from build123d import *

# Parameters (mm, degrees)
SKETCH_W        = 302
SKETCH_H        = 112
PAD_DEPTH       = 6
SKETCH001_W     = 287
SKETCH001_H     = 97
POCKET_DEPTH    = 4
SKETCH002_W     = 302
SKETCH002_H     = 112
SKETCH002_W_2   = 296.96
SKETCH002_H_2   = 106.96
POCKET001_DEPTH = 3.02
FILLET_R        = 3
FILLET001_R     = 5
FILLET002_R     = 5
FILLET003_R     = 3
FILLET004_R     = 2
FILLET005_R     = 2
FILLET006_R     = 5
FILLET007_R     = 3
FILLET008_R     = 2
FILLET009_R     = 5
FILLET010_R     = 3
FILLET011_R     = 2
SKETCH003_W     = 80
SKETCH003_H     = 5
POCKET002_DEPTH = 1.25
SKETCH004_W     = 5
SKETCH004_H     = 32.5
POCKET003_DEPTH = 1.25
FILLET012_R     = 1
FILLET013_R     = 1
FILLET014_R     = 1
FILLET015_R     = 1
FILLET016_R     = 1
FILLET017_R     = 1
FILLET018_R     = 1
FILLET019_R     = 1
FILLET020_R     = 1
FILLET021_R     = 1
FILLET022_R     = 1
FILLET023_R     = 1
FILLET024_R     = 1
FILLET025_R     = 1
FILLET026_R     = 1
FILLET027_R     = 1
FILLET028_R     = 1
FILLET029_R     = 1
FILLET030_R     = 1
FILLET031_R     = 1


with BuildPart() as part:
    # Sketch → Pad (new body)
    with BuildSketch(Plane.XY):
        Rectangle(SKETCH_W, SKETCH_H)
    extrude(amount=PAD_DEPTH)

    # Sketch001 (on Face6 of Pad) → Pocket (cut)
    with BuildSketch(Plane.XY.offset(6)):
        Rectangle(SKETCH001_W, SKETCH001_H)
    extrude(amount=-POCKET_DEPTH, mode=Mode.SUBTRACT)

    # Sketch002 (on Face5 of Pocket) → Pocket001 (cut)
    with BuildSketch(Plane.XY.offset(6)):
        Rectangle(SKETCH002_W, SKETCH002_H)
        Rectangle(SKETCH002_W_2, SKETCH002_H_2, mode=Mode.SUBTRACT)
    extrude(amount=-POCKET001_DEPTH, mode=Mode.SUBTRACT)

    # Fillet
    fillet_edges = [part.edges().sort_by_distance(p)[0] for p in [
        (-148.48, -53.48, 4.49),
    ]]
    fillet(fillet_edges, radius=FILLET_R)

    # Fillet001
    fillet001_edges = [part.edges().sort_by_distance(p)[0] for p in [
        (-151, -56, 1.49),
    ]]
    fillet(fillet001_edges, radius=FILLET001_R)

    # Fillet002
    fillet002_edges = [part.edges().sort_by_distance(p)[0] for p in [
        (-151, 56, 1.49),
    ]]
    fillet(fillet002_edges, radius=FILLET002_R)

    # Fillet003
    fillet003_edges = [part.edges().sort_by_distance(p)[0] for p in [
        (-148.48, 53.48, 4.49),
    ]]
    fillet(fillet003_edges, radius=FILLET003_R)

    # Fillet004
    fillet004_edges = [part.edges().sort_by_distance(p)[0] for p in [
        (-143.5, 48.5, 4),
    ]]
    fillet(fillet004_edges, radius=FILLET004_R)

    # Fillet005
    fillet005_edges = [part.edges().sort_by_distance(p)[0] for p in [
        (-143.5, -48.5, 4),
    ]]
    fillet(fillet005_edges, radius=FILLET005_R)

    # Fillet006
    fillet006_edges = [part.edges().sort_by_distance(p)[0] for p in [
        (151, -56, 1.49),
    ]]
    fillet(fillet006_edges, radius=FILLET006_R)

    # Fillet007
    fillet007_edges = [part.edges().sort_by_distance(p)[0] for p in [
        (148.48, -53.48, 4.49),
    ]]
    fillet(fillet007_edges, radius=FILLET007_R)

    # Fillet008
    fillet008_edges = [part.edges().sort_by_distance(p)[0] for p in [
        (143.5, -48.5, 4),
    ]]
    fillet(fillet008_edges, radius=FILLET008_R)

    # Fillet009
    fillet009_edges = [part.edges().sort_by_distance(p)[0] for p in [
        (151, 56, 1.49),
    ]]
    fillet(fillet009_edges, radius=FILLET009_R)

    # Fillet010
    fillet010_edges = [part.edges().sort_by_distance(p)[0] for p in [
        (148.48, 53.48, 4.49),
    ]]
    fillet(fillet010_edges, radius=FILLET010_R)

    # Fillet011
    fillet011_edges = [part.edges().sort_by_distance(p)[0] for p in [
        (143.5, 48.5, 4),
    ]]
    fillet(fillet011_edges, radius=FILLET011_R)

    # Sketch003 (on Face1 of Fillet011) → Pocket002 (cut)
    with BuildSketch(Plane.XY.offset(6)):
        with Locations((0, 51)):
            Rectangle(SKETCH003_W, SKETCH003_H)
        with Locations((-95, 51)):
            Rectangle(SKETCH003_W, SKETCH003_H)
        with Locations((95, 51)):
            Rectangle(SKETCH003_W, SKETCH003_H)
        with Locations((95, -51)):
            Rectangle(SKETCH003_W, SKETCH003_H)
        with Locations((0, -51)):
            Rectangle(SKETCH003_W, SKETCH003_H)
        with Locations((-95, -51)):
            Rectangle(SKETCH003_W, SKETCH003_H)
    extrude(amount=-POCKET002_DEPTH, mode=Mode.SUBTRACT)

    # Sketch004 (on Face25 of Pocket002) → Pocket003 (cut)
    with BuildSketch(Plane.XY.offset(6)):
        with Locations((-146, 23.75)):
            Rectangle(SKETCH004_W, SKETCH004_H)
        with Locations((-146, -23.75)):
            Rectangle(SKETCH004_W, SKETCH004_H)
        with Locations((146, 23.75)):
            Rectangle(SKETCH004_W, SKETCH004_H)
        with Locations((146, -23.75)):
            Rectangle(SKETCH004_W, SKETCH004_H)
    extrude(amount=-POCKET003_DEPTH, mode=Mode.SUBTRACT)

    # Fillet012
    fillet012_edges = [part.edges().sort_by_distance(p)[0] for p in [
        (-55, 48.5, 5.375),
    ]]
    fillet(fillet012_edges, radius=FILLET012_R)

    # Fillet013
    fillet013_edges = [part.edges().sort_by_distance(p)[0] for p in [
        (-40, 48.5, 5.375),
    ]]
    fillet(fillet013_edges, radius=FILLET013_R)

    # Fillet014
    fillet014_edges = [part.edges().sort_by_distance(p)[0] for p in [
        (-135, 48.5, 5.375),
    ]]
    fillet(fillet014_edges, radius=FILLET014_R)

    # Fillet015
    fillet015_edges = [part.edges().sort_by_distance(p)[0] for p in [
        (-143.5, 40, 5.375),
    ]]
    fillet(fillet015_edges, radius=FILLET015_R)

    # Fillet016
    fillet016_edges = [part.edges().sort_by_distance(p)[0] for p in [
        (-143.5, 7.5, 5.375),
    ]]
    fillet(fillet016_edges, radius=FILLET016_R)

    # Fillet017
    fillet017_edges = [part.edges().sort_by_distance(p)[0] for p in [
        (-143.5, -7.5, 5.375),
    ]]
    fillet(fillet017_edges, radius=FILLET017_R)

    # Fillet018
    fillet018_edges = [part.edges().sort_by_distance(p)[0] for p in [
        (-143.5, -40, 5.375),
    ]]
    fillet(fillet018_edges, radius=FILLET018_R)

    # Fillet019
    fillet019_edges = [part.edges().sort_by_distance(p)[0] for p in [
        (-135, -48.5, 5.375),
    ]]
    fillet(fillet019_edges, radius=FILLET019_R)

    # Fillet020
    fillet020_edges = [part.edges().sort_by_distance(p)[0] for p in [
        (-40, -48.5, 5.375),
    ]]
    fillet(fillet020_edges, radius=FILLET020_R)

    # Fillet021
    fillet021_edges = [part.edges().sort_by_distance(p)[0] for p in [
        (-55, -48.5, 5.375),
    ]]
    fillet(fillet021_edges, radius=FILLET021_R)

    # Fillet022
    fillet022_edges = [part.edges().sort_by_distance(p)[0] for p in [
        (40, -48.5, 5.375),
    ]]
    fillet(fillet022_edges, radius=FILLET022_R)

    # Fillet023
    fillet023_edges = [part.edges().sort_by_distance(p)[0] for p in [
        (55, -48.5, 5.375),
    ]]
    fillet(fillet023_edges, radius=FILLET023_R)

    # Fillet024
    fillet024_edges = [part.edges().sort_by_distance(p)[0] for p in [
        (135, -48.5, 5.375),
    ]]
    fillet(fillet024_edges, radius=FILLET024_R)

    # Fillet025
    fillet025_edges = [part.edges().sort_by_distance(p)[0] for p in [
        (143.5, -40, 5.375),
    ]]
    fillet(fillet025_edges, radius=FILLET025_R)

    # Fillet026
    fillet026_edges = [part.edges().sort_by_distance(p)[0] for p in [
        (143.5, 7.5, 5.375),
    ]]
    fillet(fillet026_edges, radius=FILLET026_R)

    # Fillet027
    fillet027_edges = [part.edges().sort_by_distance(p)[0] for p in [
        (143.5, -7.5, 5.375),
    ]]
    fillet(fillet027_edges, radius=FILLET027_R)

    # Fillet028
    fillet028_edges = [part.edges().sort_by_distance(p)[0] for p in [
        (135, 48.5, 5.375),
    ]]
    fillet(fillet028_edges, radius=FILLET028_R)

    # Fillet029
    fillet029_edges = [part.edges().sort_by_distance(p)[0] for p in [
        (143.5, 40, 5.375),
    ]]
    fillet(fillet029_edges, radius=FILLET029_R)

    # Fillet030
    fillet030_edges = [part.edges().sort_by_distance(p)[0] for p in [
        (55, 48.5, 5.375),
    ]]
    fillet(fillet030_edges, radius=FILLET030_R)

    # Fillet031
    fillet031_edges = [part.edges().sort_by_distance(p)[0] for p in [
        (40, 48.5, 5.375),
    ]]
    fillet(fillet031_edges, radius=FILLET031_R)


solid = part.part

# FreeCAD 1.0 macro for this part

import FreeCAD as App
import Part
import Sketcher
from FreeCAD import Vector


def edges_at(feature, points):
    """Names of the edges that pass closest to the given points."""
    edges = feature.Shape.Edges
    near = lambda p: min(range(len(edges)), key=lambda i: edges[i].distToShape(Part.Vertex(*p))[0])
    return sorted({f"Edge{near(p) + 1}" for p in points})

doc = App.newDocument("Part")
body = doc.addObject("PartDesign::Body", "Body")

sketch1 = body.newObject("Sketcher::SketchObject", "Sketch")
sketch1.AttachmentSupport = (doc.getObject("XY_Plane"), [""])
sketch1.MapMode = "FlatFace"
sketch1.addGeometry([
    Part.LineSegment(Vector(-151, 56, 0), Vector(-151, -56, 0)),
    Part.LineSegment(Vector(-151, -56, 0), Vector(151, -56, 0)),
    Part.LineSegment(Vector(151, -56, 0), Vector(151, 56, 0)),
    Part.LineSegment(Vector(151, 56, 0), Vector(-151, 56, 0)),
], False)
sketch1.addConstraint([
    Sketcher.Constraint("Coincident", 0, 2, 1, 1),
    Sketcher.Constraint("Coincident", 1, 2, 2, 1),
    Sketcher.Constraint("Coincident", 2, 2, 3, 1),
    Sketcher.Constraint("Coincident", 3, 2, 0, 1),
    Sketcher.Constraint("Vertical", 0),
    Sketcher.Constraint("Horizontal", 1),
    Sketcher.Constraint("Vertical", 2),
    Sketcher.Constraint("Horizontal", 3),
    Sketcher.Constraint("Symmetric", 0, 2, 2, 2, -1, 1),
    Sketcher.Constraint("DistanceX", 1, 1, 1, 2, 302.0),
    Sketcher.Constraint("DistanceY", 0, 2, 0, 1, 112.0),
])
pad1 = body.newObject("PartDesign::Pad", "Pad")
pad1.Profile = sketch1
pad1.Length = 6

sketch2 = body.newObject("Sketcher::SketchObject", "Sketch001")
sketch2.AttachmentSupport = (doc.getObject("XY_Plane"), [""])
sketch2.MapMode = "FlatFace"
sketch2.AttachmentOffset = App.Placement(Vector(0, 0, 6), App.Rotation())
sketch2.addGeometry([
    Part.LineSegment(Vector(-144, 48, 0), Vector(-144, -48, 0)),
    Part.LineSegment(Vector(-144, -48, 0), Vector(144, -48, 0)),
    Part.LineSegment(Vector(144, -48, 0), Vector(144, 48, 0)),
    Part.LineSegment(Vector(144, 48, 0), Vector(-144, 48, 0)),
], False)
sketch2.addConstraint([
    Sketcher.Constraint("Coincident", 0, 2, 1, 1),
    Sketcher.Constraint("Coincident", 1, 2, 2, 1),
    Sketcher.Constraint("Coincident", 2, 2, 3, 1),
    Sketcher.Constraint("Coincident", 3, 2, 0, 1),
    Sketcher.Constraint("Vertical", 0),
    Sketcher.Constraint("Horizontal", 1),
    Sketcher.Constraint("Vertical", 2),
    Sketcher.Constraint("Horizontal", 3),
    Sketcher.Constraint("Symmetric", 0, 2, 2, 2, -1, 1),
    Sketcher.Constraint("DistanceX", 1, 1, 1, 2, 287.0),
    Sketcher.Constraint("DistanceY", 0, 2, 0, 1, 97.0),
])
pocket1 = body.newObject("PartDesign::Pocket", "Pocket")
pocket1.Profile = sketch2
pocket1.Length = 4

sketch3 = body.newObject("Sketcher::SketchObject", "Sketch002")
sketch3.AttachmentSupport = (doc.getObject("XY_Plane"), [""])
sketch3.MapMode = "FlatFace"
sketch3.AttachmentOffset = App.Placement(Vector(0, 0, 6), App.Rotation())
sketch3.addGeometry([
    Part.LineSegment(Vector(-151, 56, 0), Vector(-151, -56, 0)),
    Part.LineSegment(Vector(-151, -56, 0), Vector(151, -56, 0)),
    Part.LineSegment(Vector(151, -56, 0), Vector(151, 56, 0)),
    Part.LineSegment(Vector(151, 56, 0), Vector(-151, 56, 0)),
    Part.LineSegment(Vector(148, -53, 0), Vector(-148, -53, 0)),
    Part.LineSegment(Vector(-148, -53, 0), Vector(-148, 53, 0)),
    Part.LineSegment(Vector(-148, 53, 0), Vector(148, 53, 0)),
    Part.LineSegment(Vector(148, 53, 0), Vector(148, -53, 0)),
], False)
sketch3.addConstraint([
    Sketcher.Constraint("Coincident", 0, 2, 1, 1),
    Sketcher.Constraint("Coincident", 1, 2, 2, 1),
    Sketcher.Constraint("Coincident", 2, 2, 3, 1),
    Sketcher.Constraint("Coincident", 3, 2, 0, 1),
    Sketcher.Constraint("Coincident", 4, 2, 5, 1),
    Sketcher.Constraint("Coincident", 5, 2, 6, 1),
    Sketcher.Constraint("Coincident", 6, 2, 7, 1),
    Sketcher.Constraint("Coincident", 7, 2, 4, 1),
    Sketcher.Constraint("Vertical", 0),
    Sketcher.Constraint("Horizontal", 1),
    Sketcher.Constraint("Vertical", 2),
    Sketcher.Constraint("Horizontal", 3),
    Sketcher.Constraint("Horizontal", 4),
    Sketcher.Constraint("Vertical", 5),
    Sketcher.Constraint("Horizontal", 6),
    Sketcher.Constraint("Vertical", 7),
    Sketcher.Constraint("Symmetric", 0, 2, 2, 2, -1, 1),
    Sketcher.Constraint("Symmetric", 4, 2, 6, 2, -1, 1),
    Sketcher.Constraint("DistanceX", 1, 1, 1, 2, 302.0),
    Sketcher.Constraint("DistanceY", 0, 2, 0, 1, 112.0),
    Sketcher.Constraint("DistanceX", 4, 2, 4, 1, 296.96),
    Sketcher.Constraint("DistanceY", 5, 1, 5, 2, 106.96),
])
pocket2 = body.newObject("PartDesign::Pocket", "Pocket001")
pocket2.Profile = sketch3
pocket2.Length = 3.02
doc.recompute()

fillet = body.newObject("PartDesign::Fillet", "Fillet")
fillet.Base = (pocket2, edges_at(pocket2, [(-148.48, -53.48, 4.49)]))
fillet.Radius = 3
doc.recompute()

fillet2 = body.newObject("PartDesign::Fillet", "Fillet001")
fillet2.Base = (fillet, edges_at(fillet, [(-151, -56, 1.49)]))
fillet2.Radius = 5
doc.recompute()

fillet3 = body.newObject("PartDesign::Fillet", "Fillet002")
fillet3.Base = (fillet2, edges_at(fillet2, [(-151, 56, 1.49)]))
fillet3.Radius = 5
doc.recompute()

fillet4 = body.newObject("PartDesign::Fillet", "Fillet003")
fillet4.Base = (fillet3, edges_at(fillet3, [(-148.48, 53.48, 4.49)]))
fillet4.Radius = 3
doc.recompute()

fillet5 = body.newObject("PartDesign::Fillet", "Fillet004")
fillet5.Base = (fillet4, edges_at(fillet4, [(-143.5, 48.5, 4)]))
fillet5.Radius = 2
doc.recompute()

fillet6 = body.newObject("PartDesign::Fillet", "Fillet005")
fillet6.Base = (fillet5, edges_at(fillet5, [(-143.5, -48.5, 4)]))
fillet6.Radius = 2
doc.recompute()

fillet7 = body.newObject("PartDesign::Fillet", "Fillet006")
fillet7.Base = (fillet6, edges_at(fillet6, [(151, -56, 1.49)]))
fillet7.Radius = 5
doc.recompute()

fillet8 = body.newObject("PartDesign::Fillet", "Fillet007")
fillet8.Base = (fillet7, edges_at(fillet7, [(148.48, -53.48, 4.49)]))
fillet8.Radius = 3
doc.recompute()

fillet9 = body.newObject("PartDesign::Fillet", "Fillet008")
fillet9.Base = (fillet8, edges_at(fillet8, [(143.5, -48.5, 4)]))
fillet9.Radius = 2
doc.recompute()

fillet10 = body.newObject("PartDesign::Fillet", "Fillet009")
fillet10.Base = (fillet9, edges_at(fillet9, [(151, 56, 1.49)]))
fillet10.Radius = 5
doc.recompute()

fillet11 = body.newObject("PartDesign::Fillet", "Fillet010")
fillet11.Base = (fillet10, edges_at(fillet10, [(148.48, 53.48, 4.49)]))
fillet11.Radius = 3
doc.recompute()

fillet12 = body.newObject("PartDesign::Fillet", "Fillet011")
fillet12.Base = (fillet11, edges_at(fillet11, [(143.5, 48.5, 4)]))
fillet12.Radius = 2

sketch4 = body.newObject("Sketcher::SketchObject", "Sketch003")
sketch4.AttachmentSupport = (doc.getObject("XY_Plane"), [""])
sketch4.MapMode = "FlatFace"
sketch4.AttachmentOffset = App.Placement(Vector(0, 0, 6), App.Rotation())
sketch4.addGeometry([
    Part.LineSegment(Vector(-40, 54, 0), Vector(-40, 48, 0)),
    Part.LineSegment(Vector(-40, 48, 0), Vector(40, 48, 0)),
    Part.LineSegment(Vector(40, 48, 0), Vector(40, 54, 0)),
    Part.LineSegment(Vector(40, 54, 0), Vector(-40, 54, 0)),
    Part.LineSegment(Vector(-135, 54, 0), Vector(-135, 48, 0)),
    Part.LineSegment(Vector(-135, 48, 0), Vector(-55, 48, 0)),
    Part.LineSegment(Vector(-55, 48, 0), Vector(-55, 54, 0)),
    Part.LineSegment(Vector(-55, 54, 0), Vector(-135, 54, 0)),
    Part.LineSegment(Vector(55, 54, 0), Vector(55, 48, 0)),
    Part.LineSegment(Vector(55, 48, 0), Vector(135, 48, 0)),
    Part.LineSegment(Vector(135, 48, 0), Vector(135, 54, 0)),
    Part.LineSegment(Vector(135, 54, 0), Vector(55, 54, 0)),
    Part.LineSegment(Vector(55, -48, 0), Vector(55, -54, 0)),
    Part.LineSegment(Vector(55, -54, 0), Vector(135, -54, 0)),
    Part.LineSegment(Vector(135, -54, 0), Vector(135, -48, 0)),
    Part.LineSegment(Vector(135, -48, 0), Vector(55, -48, 0)),
    Part.LineSegment(Vector(-40, -48, 0), Vector(-40, -54, 0)),
    Part.LineSegment(Vector(-40, -54, 0), Vector(40, -54, 0)),
    Part.LineSegment(Vector(40, -54, 0), Vector(40, -48, 0)),
    Part.LineSegment(Vector(40, -48, 0), Vector(-40, -48, 0)),
    Part.LineSegment(Vector(-135, -48, 0), Vector(-135, -54, 0)),
    Part.LineSegment(Vector(-135, -54, 0), Vector(-55, -54, 0)),
    Part.LineSegment(Vector(-55, -54, 0), Vector(-55, -48, 0)),
    Part.LineSegment(Vector(-55, -48, 0), Vector(-135, -48, 0)),
], False)
sketch4.addConstraint([
    Sketcher.Constraint("Coincident", 0, 2, 1, 1),
    Sketcher.Constraint("Coincident", 1, 2, 2, 1),
    Sketcher.Constraint("Coincident", 2, 2, 3, 1),
    Sketcher.Constraint("Coincident", 3, 2, 0, 1),
    Sketcher.Constraint("Coincident", 4, 2, 5, 1),
    Sketcher.Constraint("Coincident", 5, 2, 6, 1),
    Sketcher.Constraint("Coincident", 6, 2, 7, 1),
    Sketcher.Constraint("Coincident", 7, 2, 4, 1),
    Sketcher.Constraint("Coincident", 8, 2, 9, 1),
    Sketcher.Constraint("Coincident", 9, 2, 10, 1),
    Sketcher.Constraint("Coincident", 10, 2, 11, 1),
    Sketcher.Constraint("Coincident", 11, 2, 8, 1),
    Sketcher.Constraint("Coincident", 12, 2, 13, 1),
    Sketcher.Constraint("Coincident", 13, 2, 14, 1),
    Sketcher.Constraint("Coincident", 14, 2, 15, 1),
    Sketcher.Constraint("Coincident", 15, 2, 12, 1),
    Sketcher.Constraint("Coincident", 16, 2, 17, 1),
    Sketcher.Constraint("Coincident", 17, 2, 18, 1),
    Sketcher.Constraint("Coincident", 18, 2, 19, 1),
    Sketcher.Constraint("Coincident", 19, 2, 16, 1),
    Sketcher.Constraint("Coincident", 20, 2, 21, 1),
    Sketcher.Constraint("Coincident", 21, 2, 22, 1),
    Sketcher.Constraint("Coincident", 22, 2, 23, 1),
    Sketcher.Constraint("Coincident", 23, 2, 20, 1),
    Sketcher.Constraint("Vertical", 0),
    Sketcher.Constraint("Horizontal", 1),
    Sketcher.Constraint("Vertical", 2),
    Sketcher.Constraint("Horizontal", 3),
    Sketcher.Constraint("Vertical", 4),
    Sketcher.Constraint("Horizontal", 5),
    Sketcher.Constraint("Vertical", 6),
    Sketcher.Constraint("Horizontal", 7),
    Sketcher.Constraint("Vertical", 8),
    Sketcher.Constraint("Horizontal", 9),
    Sketcher.Constraint("Vertical", 10),
    Sketcher.Constraint("Horizontal", 11),
    Sketcher.Constraint("Vertical", 12),
    Sketcher.Constraint("Horizontal", 13),
    Sketcher.Constraint("Vertical", 14),
    Sketcher.Constraint("Horizontal", 15),
    Sketcher.Constraint("Vertical", 16),
    Sketcher.Constraint("Horizontal", 17),
    Sketcher.Constraint("Vertical", 18),
    Sketcher.Constraint("Horizontal", 19),
    Sketcher.Constraint("Vertical", 20),
    Sketcher.Constraint("Horizontal", 21),
    Sketcher.Constraint("Vertical", 22),
    Sketcher.Constraint("Horizontal", 23),
    Sketcher.Constraint("Symmetric", 6, 2, 12, 2, -1, 1),
    Sketcher.Constraint("Symmetric", 4, 2, 14, 2, -1, 1),
    Sketcher.Constraint("Symmetric", 2, 2, 16, 2, -1, 1),
    Sketcher.Constraint("Symmetric", 0, 2, 18, 2, -1, 1),
    Sketcher.Constraint("Symmetric", 10, 2, 20, 2, -1, 1),
    Sketcher.Constraint("Symmetric", 8, 2, 22, 2, -1, 1),
    Sketcher.Constraint("Symmetric", 5, 2, 8, 2, -2),
    Sketcher.Constraint("Symmetric", 7, 2, 10, 2, -2),
    Sketcher.Constraint("Horizontal", 1, 2, 4, 2),
    Sketcher.Constraint("Horizontal", 3, 2, 6, 2),
    Sketcher.Constraint("Vertical", 3, 2, 16, 2),
    Sketcher.Constraint("Equal", 3, 5),
    Sketcher.Constraint("DistanceX", 1, 1, 1, 2, 80.0),
    Sketcher.Constraint("DistanceY", 0, 2, 0, 1, 5.0),
    Sketcher.Constraint("DistanceX", 4, 2, -1, 1, 135.0),
    Sketcher.Constraint("DistanceY", 12, 2, 8, 2, 102.0),
])
pocket3 = body.newObject("PartDesign::Pocket", "Pocket002")
pocket3.Profile = sketch4
pocket3.Length = 1.25

sketch5 = body.newObject("Sketcher::SketchObject", "Sketch004")
sketch5.AttachmentSupport = (doc.getObject("XY_Plane"), [""])
sketch5.MapMode = "FlatFace"
sketch5.AttachmentOffset = App.Placement(Vector(0, 0, 6), App.Rotation())
sketch5.addGeometry([
    Part.LineSegment(Vector(-148, 40, 0), Vector(-148, 8, 0)),
    Part.LineSegment(Vector(-148, 8, 0), Vector(-144, 8, 0)),
    Part.LineSegment(Vector(-144, 8, 0), Vector(-144, 40, 0)),
    Part.LineSegment(Vector(-144, 40, 0), Vector(-148, 40, 0)),
    Part.LineSegment(Vector(-148, -8, 0), Vector(-148, -40, 0)),
    Part.LineSegment(Vector(-148, -40, 0), Vector(-144, -40, 0)),
    Part.LineSegment(Vector(-144, -40, 0), Vector(-144, -8, 0)),
    Part.LineSegment(Vector(-144, -8, 0), Vector(-148, -8, 0)),
    Part.LineSegment(Vector(144, 40, 0), Vector(144, 8, 0)),
    Part.LineSegment(Vector(144, 8, 0), Vector(148, 8, 0)),
    Part.LineSegment(Vector(148, 8, 0), Vector(148, 40, 0)),
    Part.LineSegment(Vector(148, 40, 0), Vector(144, 40, 0)),
    Part.LineSegment(Vector(144, -8, 0), Vector(144, -40, 0)),
    Part.LineSegment(Vector(144, -40, 0), Vector(148, -40, 0)),
    Part.LineSegment(Vector(148, -40, 0), Vector(148, -8, 0)),
    Part.LineSegment(Vector(148, -8, 0), Vector(144, -8, 0)),
], False)
sketch5.addConstraint([
    Sketcher.Constraint("Coincident", 0, 2, 1, 1),
    Sketcher.Constraint("Coincident", 1, 2, 2, 1),
    Sketcher.Constraint("Coincident", 2, 2, 3, 1),
    Sketcher.Constraint("Coincident", 3, 2, 0, 1),
    Sketcher.Constraint("Coincident", 4, 2, 5, 1),
    Sketcher.Constraint("Coincident", 5, 2, 6, 1),
    Sketcher.Constraint("Coincident", 6, 2, 7, 1),
    Sketcher.Constraint("Coincident", 7, 2, 4, 1),
    Sketcher.Constraint("Coincident", 8, 2, 9, 1),
    Sketcher.Constraint("Coincident", 9, 2, 10, 1),
    Sketcher.Constraint("Coincident", 10, 2, 11, 1),
    Sketcher.Constraint("Coincident", 11, 2, 8, 1),
    Sketcher.Constraint("Coincident", 12, 2, 13, 1),
    Sketcher.Constraint("Coincident", 13, 2, 14, 1),
    Sketcher.Constraint("Coincident", 14, 2, 15, 1),
    Sketcher.Constraint("Coincident", 15, 2, 12, 1),
    Sketcher.Constraint("Vertical", 0),
    Sketcher.Constraint("Horizontal", 1),
    Sketcher.Constraint("Vertical", 2),
    Sketcher.Constraint("Horizontal", 3),
    Sketcher.Constraint("Vertical", 4),
    Sketcher.Constraint("Horizontal", 5),
    Sketcher.Constraint("Vertical", 6),
    Sketcher.Constraint("Horizontal", 7),
    Sketcher.Constraint("Vertical", 8),
    Sketcher.Constraint("Horizontal", 9),
    Sketcher.Constraint("Vertical", 10),
    Sketcher.Constraint("Horizontal", 11),
    Sketcher.Constraint("Vertical", 12),
    Sketcher.Constraint("Horizontal", 13),
    Sketcher.Constraint("Vertical", 14),
    Sketcher.Constraint("Horizontal", 15),
    Sketcher.Constraint("Symmetric", 6, 2, 8, 2, -1, 1),
    Sketcher.Constraint("Symmetric", 4, 2, 10, 2, -1, 1),
    Sketcher.Constraint("Symmetric", 2, 2, 12, 2, -1, 1),
    Sketcher.Constraint("Symmetric", 0, 2, 14, 2, -1, 1),
    Sketcher.Constraint("Symmetric", 1, 2, 8, 2, -2),
    Sketcher.Constraint("Symmetric", 3, 2, 10, 2, -2),
    Sketcher.Constraint("DistanceX", 1, 1, 1, 2, 5.0),
    Sketcher.Constraint("DistanceY", 0, 2, 0, 1, 32.5),
    Sketcher.Constraint("DistanceY", -1, 1, 2, 2, 40.0),
    Sketcher.Constraint("DistanceX", 1, 2, 8, 2, 287.0),
])
pocket4 = body.newObject("PartDesign::Pocket", "Pocket003")
pocket4.Profile = sketch5
pocket4.Length = 1.25
doc.recompute()

fillet13 = body.newObject("PartDesign::Fillet", "Fillet012")
fillet13.Base = (pocket4, edges_at(pocket4, [(-55, 48.5, 5.375)]))
fillet13.Radius = 1
doc.recompute()

fillet14 = body.newObject("PartDesign::Fillet", "Fillet013")
fillet14.Base = (fillet13, edges_at(fillet13, [(-40, 48.5, 5.375)]))
fillet14.Radius = 1
doc.recompute()

fillet15 = body.newObject("PartDesign::Fillet", "Fillet014")
fillet15.Base = (fillet14, edges_at(fillet14, [(-135, 48.5, 5.375)]))
fillet15.Radius = 1
doc.recompute()

fillet16 = body.newObject("PartDesign::Fillet", "Fillet015")
fillet16.Base = (fillet15, edges_at(fillet15, [(-143.5, 40, 5.375)]))
fillet16.Radius = 1
doc.recompute()

fillet17 = body.newObject("PartDesign::Fillet", "Fillet016")
fillet17.Base = (fillet16, edges_at(fillet16, [(-143.5, 7.5, 5.375)]))
fillet17.Radius = 1
doc.recompute()

fillet18 = body.newObject("PartDesign::Fillet", "Fillet017")
fillet18.Base = (fillet17, edges_at(fillet17, [(-143.5, -7.5, 5.375)]))
fillet18.Radius = 1
doc.recompute()

fillet19 = body.newObject("PartDesign::Fillet", "Fillet018")
fillet19.Base = (fillet18, edges_at(fillet18, [(-143.5, -40, 5.375)]))
fillet19.Radius = 1
doc.recompute()

fillet20 = body.newObject("PartDesign::Fillet", "Fillet019")
fillet20.Base = (fillet19, edges_at(fillet19, [(-135, -48.5, 5.375)]))
fillet20.Radius = 1
doc.recompute()

fillet21 = body.newObject("PartDesign::Fillet", "Fillet020")
fillet21.Base = (fillet20, edges_at(fillet20, [(-40, -48.5, 5.375)]))
fillet21.Radius = 1
doc.recompute()

fillet22 = body.newObject("PartDesign::Fillet", "Fillet021")
fillet22.Base = (fillet21, edges_at(fillet21, [(-55, -48.5, 5.375)]))
fillet22.Radius = 1
doc.recompute()

fillet23 = body.newObject("PartDesign::Fillet", "Fillet022")
fillet23.Base = (fillet22, edges_at(fillet22, [(40, -48.5, 5.375)]))
fillet23.Radius = 1
doc.recompute()

fillet24 = body.newObject("PartDesign::Fillet", "Fillet023")
fillet24.Base = (fillet23, edges_at(fillet23, [(55, -48.5, 5.375)]))
fillet24.Radius = 1
doc.recompute()

fillet25 = body.newObject("PartDesign::Fillet", "Fillet024")
fillet25.Base = (fillet24, edges_at(fillet24, [(135, -48.5, 5.375)]))
fillet25.Radius = 1
doc.recompute()

fillet26 = body.newObject("PartDesign::Fillet", "Fillet025")
fillet26.Base = (fillet25, edges_at(fillet25, [(143.5, -40, 5.375)]))
fillet26.Radius = 1
doc.recompute()

fillet27 = body.newObject("PartDesign::Fillet", "Fillet026")
fillet27.Base = (fillet26, edges_at(fillet26, [(143.5, 7.5, 5.375)]))
fillet27.Radius = 1
doc.recompute()

fillet28 = body.newObject("PartDesign::Fillet", "Fillet027")
fillet28.Base = (fillet27, edges_at(fillet27, [(143.5, -7.5, 5.375)]))
fillet28.Radius = 1
doc.recompute()

fillet29 = body.newObject("PartDesign::Fillet", "Fillet028")
fillet29.Base = (fillet28, edges_at(fillet28, [(135, 48.5, 5.375)]))
fillet29.Radius = 1
doc.recompute()

fillet30 = body.newObject("PartDesign::Fillet", "Fillet029")
fillet30.Base = (fillet29, edges_at(fillet29, [(143.5, 40, 5.375)]))
fillet30.Radius = 1
doc.recompute()

fillet31 = body.newObject("PartDesign::Fillet", "Fillet030")
fillet31.Base = (fillet30, edges_at(fillet30, [(55, 48.5, 5.375)]))
fillet31.Radius = 1
doc.recompute()

fillet32 = body.newObject("PartDesign::Fillet", "Fillet031")
fillet32.Base = (fillet31, edges_at(fillet31, [(40, 48.5, 5.375)]))
fillet32.Radius = 1

doc.recompute()
